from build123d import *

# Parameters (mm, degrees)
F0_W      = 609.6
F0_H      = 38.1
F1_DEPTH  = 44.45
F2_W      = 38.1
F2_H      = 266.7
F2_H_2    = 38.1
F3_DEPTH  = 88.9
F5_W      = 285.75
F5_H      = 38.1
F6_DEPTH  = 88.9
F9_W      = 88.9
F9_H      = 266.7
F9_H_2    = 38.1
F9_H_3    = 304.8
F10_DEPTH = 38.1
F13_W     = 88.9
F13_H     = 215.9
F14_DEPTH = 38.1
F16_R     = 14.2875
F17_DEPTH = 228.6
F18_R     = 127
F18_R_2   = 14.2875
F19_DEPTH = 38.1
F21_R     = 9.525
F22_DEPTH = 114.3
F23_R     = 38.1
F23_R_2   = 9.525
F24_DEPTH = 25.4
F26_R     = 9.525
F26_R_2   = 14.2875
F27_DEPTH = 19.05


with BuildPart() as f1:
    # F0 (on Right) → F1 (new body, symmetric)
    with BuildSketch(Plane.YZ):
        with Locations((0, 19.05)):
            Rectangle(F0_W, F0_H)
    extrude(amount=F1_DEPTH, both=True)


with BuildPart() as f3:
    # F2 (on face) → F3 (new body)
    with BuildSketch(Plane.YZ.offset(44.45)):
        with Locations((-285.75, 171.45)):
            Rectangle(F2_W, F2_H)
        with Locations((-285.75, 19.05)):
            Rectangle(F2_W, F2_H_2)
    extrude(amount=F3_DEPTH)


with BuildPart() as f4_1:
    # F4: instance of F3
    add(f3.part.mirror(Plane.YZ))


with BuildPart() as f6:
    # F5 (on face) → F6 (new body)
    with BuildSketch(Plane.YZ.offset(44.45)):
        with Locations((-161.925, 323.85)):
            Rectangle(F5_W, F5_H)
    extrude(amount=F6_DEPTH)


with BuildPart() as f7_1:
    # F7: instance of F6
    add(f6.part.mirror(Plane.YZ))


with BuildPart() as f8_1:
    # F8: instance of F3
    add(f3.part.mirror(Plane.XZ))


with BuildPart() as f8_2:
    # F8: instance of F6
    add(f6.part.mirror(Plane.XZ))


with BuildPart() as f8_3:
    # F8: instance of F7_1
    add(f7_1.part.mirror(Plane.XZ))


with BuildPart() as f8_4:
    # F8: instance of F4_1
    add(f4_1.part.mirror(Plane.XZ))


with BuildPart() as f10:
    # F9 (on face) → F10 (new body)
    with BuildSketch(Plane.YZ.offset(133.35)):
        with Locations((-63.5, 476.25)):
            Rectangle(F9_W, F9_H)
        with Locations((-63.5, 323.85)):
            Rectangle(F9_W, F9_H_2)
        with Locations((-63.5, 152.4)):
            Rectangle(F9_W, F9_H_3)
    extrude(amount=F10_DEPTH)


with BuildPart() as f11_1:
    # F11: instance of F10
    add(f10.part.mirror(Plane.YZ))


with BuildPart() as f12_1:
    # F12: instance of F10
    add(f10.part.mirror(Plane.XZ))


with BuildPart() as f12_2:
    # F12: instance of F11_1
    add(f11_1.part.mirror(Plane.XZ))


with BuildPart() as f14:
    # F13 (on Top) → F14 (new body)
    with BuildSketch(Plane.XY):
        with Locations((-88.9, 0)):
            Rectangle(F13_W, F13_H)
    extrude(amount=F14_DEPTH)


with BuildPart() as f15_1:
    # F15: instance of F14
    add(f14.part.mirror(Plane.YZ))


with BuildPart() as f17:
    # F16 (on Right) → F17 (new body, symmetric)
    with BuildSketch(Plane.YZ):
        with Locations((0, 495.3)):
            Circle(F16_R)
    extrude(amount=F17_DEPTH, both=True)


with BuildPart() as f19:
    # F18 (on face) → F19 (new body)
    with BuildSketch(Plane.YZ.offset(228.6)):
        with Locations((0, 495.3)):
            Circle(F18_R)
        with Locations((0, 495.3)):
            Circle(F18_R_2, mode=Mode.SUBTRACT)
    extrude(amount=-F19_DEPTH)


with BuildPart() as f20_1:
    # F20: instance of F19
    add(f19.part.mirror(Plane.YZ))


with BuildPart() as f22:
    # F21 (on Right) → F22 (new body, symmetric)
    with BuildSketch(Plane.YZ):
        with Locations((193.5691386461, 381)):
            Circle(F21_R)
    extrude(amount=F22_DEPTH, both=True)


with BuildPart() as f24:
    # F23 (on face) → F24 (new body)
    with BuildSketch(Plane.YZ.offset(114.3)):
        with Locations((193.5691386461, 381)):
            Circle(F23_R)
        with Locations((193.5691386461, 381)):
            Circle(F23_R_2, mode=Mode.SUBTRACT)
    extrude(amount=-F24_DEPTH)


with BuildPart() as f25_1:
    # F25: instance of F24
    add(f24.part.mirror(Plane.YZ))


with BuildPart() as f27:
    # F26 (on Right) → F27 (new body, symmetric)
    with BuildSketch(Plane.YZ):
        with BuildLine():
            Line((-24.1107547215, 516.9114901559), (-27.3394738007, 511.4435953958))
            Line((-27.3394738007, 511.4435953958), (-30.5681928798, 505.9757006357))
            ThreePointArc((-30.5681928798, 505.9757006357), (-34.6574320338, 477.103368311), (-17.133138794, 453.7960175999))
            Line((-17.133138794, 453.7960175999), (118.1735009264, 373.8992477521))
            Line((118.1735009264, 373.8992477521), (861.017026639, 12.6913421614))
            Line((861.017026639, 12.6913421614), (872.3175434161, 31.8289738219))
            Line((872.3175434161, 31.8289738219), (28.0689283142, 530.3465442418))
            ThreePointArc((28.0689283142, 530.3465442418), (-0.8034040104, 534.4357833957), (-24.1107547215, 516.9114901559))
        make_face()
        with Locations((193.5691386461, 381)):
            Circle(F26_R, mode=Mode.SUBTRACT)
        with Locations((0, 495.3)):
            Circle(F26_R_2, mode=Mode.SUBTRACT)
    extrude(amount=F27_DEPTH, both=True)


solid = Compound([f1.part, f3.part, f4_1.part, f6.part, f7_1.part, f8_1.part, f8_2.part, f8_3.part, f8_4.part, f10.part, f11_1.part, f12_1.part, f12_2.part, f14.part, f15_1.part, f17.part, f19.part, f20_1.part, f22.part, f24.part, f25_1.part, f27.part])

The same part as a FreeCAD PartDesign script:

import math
import FreeCAD as App
import Part
import Sketcher
from FreeCAD import Vector
Q = App.Units.Quantity


def add_polygon(sketch, points):
    """Adds a closed chain of lines whose ends are joined by coincident constraints."""
    first, n = sketch.GeometryCount, len(points)
    for a, b in zip(points, points[1:] + points[:1]):
        sketch.addGeometry(Part.LineSegment(App.Vector(*a, 0), App.Vector(*b, 0)), False)
    for i in range(n):
        sketch.addConstraint(Sketcher.Constraint("Coincident", first + i, 2, first + (i + 1) % n, 1))

doc = App.newDocument("Part")
body = doc.addObject("PartDesign::Body", "Body")

sketch1 = body.newObject("Sketcher::SketchObject", "Sketch")
sketch1.AttachmentSupport = (doc.getObject("YZ_Plane"), [""])
sketch1.MapMode = "FlatFace"
add_polygon(sketch1, [(-305, 38), (-305, 0), (305, 0), (305, 38)])
sketch1.addConstraint(Sketcher.Constraint("Vertical", 0))
sketch1.addConstraint(Sketcher.Constraint("Horizontal", 1))
sketch1.addConstraint(Sketcher.Constraint("Vertical", 2))
sketch1.addConstraint(Sketcher.Constraint("Horizontal", 3))
sketch1.addConstraint(Sketcher.Constraint("Symmetric", 0, 2, 1, 2, -1, 1))
sketch1.addConstraint(Sketcher.Constraint("DistanceX", 1, 1, 1, 2, Q("24 in")))
sketch1.addConstraint(Sketcher.Constraint("DistanceY", 0, 2, 0, 1, Q("1.5 in")))
pad1 = body.newObject("PartDesign::Pad", "Pad")
pad1.Profile = sketch1
pad1.Length = Q("3.5 in")
pad1.Midplane = True
body2 = doc.addObject("PartDesign::Body", "Body001")

sketch2 = body2.newObject("Sketcher::SketchObject", "Sketch001")
sketch2.AttachmentSupport = (doc.getObject("YZ_Plane001"), [""])
sketch2.MapMode = "FlatFace"
sketch2.AttachmentOffset = App.Placement(Vector(0, 0, 1.75 * 25.4), App.Rotation())
add_polygon(sketch2, [(-305, 305), (-305, 0), (-267, 0), (-267, 305)])
sketch2.addConstraint(Sketcher.Constraint("Vertical", 0))
sketch2.addConstraint(Sketcher.Constraint("Horizontal", 1))
sketch2.addConstraint(Sketcher.Constraint("Vertical", 2))
sketch2.addConstraint(Sketcher.Constraint("Horizontal", 3))
sketch2.addConstraint(Sketcher.Constraint("PointOnObject", 0, 2, -1))
sketch2.addConstraint(Sketcher.Constraint("DistanceY", 0, 2, 0, 1, Q("12 in")))
sketch2.addConstraint(Sketcher.Constraint("DistanceX", 1, 1, 1, 2, Q("1.5 in")))
sketch2.addConstraint(Sketcher.Constraint("DistanceX", 0, 2, -1, 1, Q("12 in")))
pad2 = body2.newObject("PartDesign::Pad", "Pad001")
pad2.Profile = sketch2
pad2.Length = Q("3.5 in")
body3 = doc.addObject("PartDesign::Body", "Body002")
doc.recompute()

mirroring = doc.addObject("Part::Mirroring", "Mirroring")
mirroring.Source = body2
mirroring.Base = Vector(0, 0, 0)
mirroring.Normal = Vector(1, 0, 0)
body3.BaseFeature = mirroring
doc.recompute()
body4 = doc.addObject("PartDesign::Body", "Body003")

sketch3 = body4.newObject("Sketcher::SketchObject", "Sketch002")
sketch3.AttachmentSupport = (doc.getObject("YZ_Plane003"), [""])
sketch3.MapMode = "FlatFace"
sketch3.AttachmentOffset = App.Placement(Vector(0, 0, 1.75 * 25.4), App.Rotation())
add_polygon(sketch3, [(-305, 343), (-305, 305), (-19, 305), (-19, 343)])
sketch3.addConstraint(Sketcher.Constraint("Vertical", 0))
sketch3.addConstraint(Sketcher.Constraint("Horizontal", 1))
sketch3.addConstraint(Sketcher.Constraint("Vertical", 2))
sketch3.addConstraint(Sketcher.Constraint("Horizontal", 3))
sketch3.addConstraint(Sketcher.Constraint("DistanceY", 0, 2, 0, 1, Q("1.5 in")))
sketch3.addConstraint(Sketcher.Constraint("DistanceX", 0, 2, -1, 1, Q("12 in")))
sketch3.addConstraint(Sketcher.Constraint("DistanceY", -1, 1, 0, 2, Q("12 in")))
sketch3.addConstraint(Sketcher.Constraint("DistanceX", 1, 1, 1, 2, Q("11.25 in")))
pad3 = body4.newObject("PartDesign::Pad", "Pad002")
pad3.Profile = sketch3
pad3.Length = Q("3.5 in")
body5 = doc.addObject("PartDesign::Body", "Body004")
doc.recompute()

mirroring2 = doc.addObject("Part::Mirroring", "Mirroring001")
mirroring2.Source = body4
mirroring2.Base = Vector(0, 0, 0)
mirroring2.Normal = Vector(1, 0, 0)
body5.BaseFeature = mirroring2
doc.recompute()
body6 = doc.addObject("PartDesign::Body", "Body005")
doc.recompute()

mirroring3 = doc.addObject("Part::Mirroring", "Mirroring002")
mirroring3.Source = body2
mirroring3.Base = Vector(0, 0, 0)
mirroring3.Normal = Vector(0, -1, 0)
body6.BaseFeature = mirroring3
doc.recompute()
body7 = doc.addObject("PartDesign::Body", "Body006")
doc.recompute()

mirroring4 = doc.addObject("Part::Mirroring", "Mirroring003")
mirroring4.Source = body4
mirroring4.Base = Vector(0, 0, 0)
mirroring4.Normal = Vector(0, -1, 0)
body7.BaseFeature = mirroring4
doc.recompute()
body8 = doc.addObject("PartDesign::Body", "Body007")
doc.recompute()

mirroring5 = doc.addObject("Part::Mirroring", "Mirroring004")
mirroring5.Source = body5
mirroring5.Base = Vector(0, 0, 0)
mirroring5.Normal = Vector(0, -1, 0)
body8.BaseFeature = mirroring5
doc.recompute()
body9 = doc.addObject("PartDesign::Body", "Body008")
doc.recompute()

mirroring6 = doc.addObject("Part::Mirroring", "Mirroring005")
mirroring6.Source = body3
mirroring6.Base = Vector(0, 0, 0)
mirroring6.Normal = Vector(0, -1, 0)
body9.BaseFeature = mirroring6
doc.recompute()
body10 = doc.addObject("PartDesign::Body", "Body009")

sketch4 = body10.newObject("Sketcher::SketchObject", "Sketch003")
sketch4.AttachmentSupport = (doc.getObject("YZ_Plane009"), [""])
sketch4.MapMode = "FlatFace"
sketch4.AttachmentOffset = App.Placement(Vector(0, 0, 5.25 * 25.4), App.Rotation())
add_polygon(sketch4, [(-108, 610), (-108, 0), (-19, 0), (-19, 610)])
sketch4.addConstraint(Sketcher.Constraint("Vertical", 0))
sketch4.addConstraint(Sketcher.Constraint("Horizontal", 1))
sketch4.addConstraint(Sketcher.Constraint("Vertical", 2))
sketch4.addConstraint(Sketcher.Constraint("Horizontal", 3))
sketch4.addConstraint(Sketcher.Constraint("PointOnObject", 0, 2, -1))
sketch4.addConstraint(Sketcher.Constraint("DistanceY", 0, 2, 0, 1, Q("24 in")))
sketch4.addConstraint(Sketcher.Constraint("DistanceX", 1, 1, 1, 2, Q("3.5 in")))
sketch4.addConstraint(Sketcher.Constraint("DistanceX", 0, 2, -1, 1, Q("4.25 in")))
pad4 = body10.newObject("PartDesign::Pad", "Pad003")
pad4.Profile = sketch4
pad4.Length = Q("1.5 in")
body11 = doc.addObject("PartDesign::Body", "Body010")
doc.recompute()

mirroring7 = doc.addObject("Part::Mirroring", "Mirroring006")
mirroring7.Source = body10
mirroring7.Base = Vector(0, 0, 0)
mirroring7.Normal = Vector(1, 0, 0)
body11.BaseFeature = mirroring7
doc.recompute()
body12 = doc.addObject("PartDesign::Body", "Body011")
doc.recompute()

mirroring8 = doc.addObject("Part::Mirroring", "Mirroring007")
mirroring8.Source = body10
mirroring8.Base = Vector(0, 0, 0)
mirroring8.Normal = Vector(0, -1, 0)
body12.BaseFeature = mirroring8
doc.recompute()
body13 = doc.addObject("PartDesign::Body", "Body012")
doc.recompute()

mirroring9 = doc.addObject("Part::Mirroring", "Mirroring008")
mirroring9.Source = body11
mirroring9.Base = Vector(0, 0, 0)
mirroring9.Normal = Vector(0, -1, 0)
body13.BaseFeature = mirroring9
doc.recompute()
body14 = doc.addObject("PartDesign::Body", "Body013")

sketch5 = body14.newObject("Sketcher::SketchObject", "Sketch004")
sketch5.AttachmentSupport = (doc.getObject("XY_Plane013"), [""])
sketch5.MapMode = "FlatFace"
add_polygon(sketch5, [(-133, 108), (-133, -108), (-44, -108), (-44, 108)])
sketch5.addConstraint(Sketcher.Constraint("Vertical", 0))
sketch5.addConstraint(Sketcher.Constraint("Horizontal", 1))
sketch5.addConstraint(Sketcher.Constraint("Vertical", 2))
sketch5.addConstraint(Sketcher.Constraint("Horizontal", 3))
sketch5.addConstraint(Sketcher.Constraint("DistanceX", 1, 1, 1, 2, Q("3.5 in")))
sketch5.addConstraint(Sketcher.Constraint("DistanceY", 0, 2, 0, 1, Q("8.5 in")))
sketch5.addConstraint(Sketcher.Constraint("DistanceX", 0, 2, -1, 1, Q("5.25 in")))
sketch5.addConstraint(Sketcher.Constraint("DistanceY", 0, 2, -1, 1, Q("4.25 in")))
pad5 = body14.newObject("PartDesign::Pad", "Pad004")
pad5.Profile = sketch5
pad5.Length = Q("1.5 in")
body15 = doc.addObject("PartDesign::Body", "Body014")
doc.recompute()

mirroring10 = doc.addObject("Part::Mirroring", "Mirroring009")
mirroring10.Source = body14
mirroring10.Base = Vector(0, 0, 0)
mirroring10.Normal = Vector(1, 0, 0)
body15.BaseFeature = mirroring10
doc.recompute()
body16 = doc.addObject("PartDesign::Body", "Body015")

sketch6 = body16.newObject("Sketcher::SketchObject", "Sketch005")
sketch6.AttachmentSupport = (doc.getObject("YZ_Plane015"), [""])
sketch6.MapMode = "FlatFace"
sketch6.addGeometry(Part.Circle(Vector(0, 495, 0), Vector(0, 0, 1), 14), False)
sketch6.addConstraint(Sketcher.Constraint("PointOnObject", 0, 3, -2))
sketch6.addConstraint(Sketcher.Constraint("Diameter", 0, Q("1.125 in")))
sketch6.addConstraint(Sketcher.Constraint("DistanceY", -1, 1, 0, 3, Q("19.5 in")))
pad6 = body16.newObject("PartDesign::Pad", "Pad005")
pad6.Profile = sketch6
pad6.Length = Q("18 in")
pad6.Midplane = True
body17 = doc.addObject("PartDesign::Body", "Body016")

sketch7 = body17.newObject("Sketcher::SketchObject", "Sketch006")
sketch7.AttachmentSupport = (doc.getObject("YZ_Plane016"), [""])
sketch7.MapMode = "FlatFace"
sketch7.AttachmentOffset = App.Placement(Vector(0, 0, 9 * 25.4), App.Rotation())
sketch7.addGeometry(Part.Circle(Vector(0, 495, 0), Vector(0, 0, 1), 127), False)
sketch7.addGeometry(Part.Circle(Vector(0, 495, 0), Vector(0, 0, 1), 14), False)
sketch7.addConstraint(Sketcher.Constraint("Coincident", 1, 3, 0, 3))
sketch7.addConstraint(Sketcher.Constraint("PointOnObject", 0, 3, -2))
sketch7.addConstraint(Sketcher.Constraint("Diameter", 0, Q("10 in")))
sketch7.addConstraint(Sketcher.Constraint("Diameter", 1, Q("1.125 in")))
sketch7.addConstraint(Sketcher.Constraint("DistanceY", -1, 1, 0, 3, Q("19.5 in")))
pad7 = body17.newObject("PartDesign::Pad", "Pad006")
pad7.Profile = sketch7
pad7.Length = Q("1.5 in")
pad7.Reversed = True
body18 = doc.addObject("PartDesign::Body", "Body017")
doc.recompute()

mirroring11 = doc.addObject("Part::Mirroring", "Mirroring010")
mirroring11.Source = body17
mirroring11.Base = Vector(0, 0, 0)
mirroring11.Normal = Vector(1, 0, 0)
body18.BaseFeature = mirroring11
doc.recompute()
body19 = doc.addObject("PartDesign::Body", "Body018")

sketch8 = body19.newObject("Sketcher::SketchObject", "Sketch007")
sketch8.AttachmentSupport = (doc.getObject("YZ_Plane018"), [""])
sketch8.MapMode = "FlatFace"
sketch8.addGeometry(Part.Circle(Vector(194, 381, 0), Vector(0, 0, 1), 10), False)
sketch8.addConstraint(Sketcher.Constraint("Diameter", 0, Q("0.75 in")))
sketch8.addConstraint(Sketcher.Constraint("DistanceY", -1, 1, 0, 3, Q("15 in")))
sketch8.addConstraint(Sketcher.Constraint("DistanceX", -1, 1, 0, 3, Q("193.569139 mm")))
pad8 = body19.newObject("PartDesign::Pad", "Pad007")
pad8.Profile = sketch8
pad8.Length = Q("9 in")
pad8.Midplane = True
body20 = doc.addObject("PartDesign::Body", "Body019")

sketch9 = body20.newObject("Sketcher::SketchObject", "Sketch008")
sketch9.AttachmentSupport = (doc.getObject("YZ_Plane019"), [""])
sketch9.MapMode = "FlatFace"
sketch9.AttachmentOffset = App.Placement(Vector(0, 0, 4.5 * 25.4), App.Rotation())
sketch9.addGeometry(Part.Circle(Vector(194, 381, 0), Vector(0, 0, 1), 38), False)
sketch9.addGeometry(Part.Circle(Vector(194, 381, 0), Vector(0, 0, 1), 10), False)
sketch9.addConstraint(Sketcher.Constraint("Coincident", 1, 3, 0, 3))
sketch9.addConstraint(Sketcher.Constraint("Diameter", 0, Q("3 in")))
sketch9.addConstraint(Sketcher.Constraint("Diameter", 1, Q("0.75 in")))
sketch9.addConstraint(Sketcher.Constraint("DistanceY", -1, 1, 0, 3, Q("15 in")))
sketch9.addConstraint(Sketcher.Constraint("DistanceX", -1, 1, 0, 3, Q("193.569139 mm")))
pad9 = body20.newObject("PartDesign::Pad", "Pad008")
pad9.Profile = sketch9
pad9.Length = Q("1 in")
pad9.Reversed = True
body21 = doc.addObject("PartDesign::Body", "Body020")
doc.recompute()

mirroring12 = doc.addObject("Part::Mirroring", "Mirroring011")
mirroring12.Source = body20
mirroring12.Base = Vector(0, 0, 0)
mirroring12.Normal = Vector(1, 0, 0)
body21.BaseFeature = mirroring12
doc.recompute()
body22 = doc.addObject("PartDesign::Body", "Body021")

sketch10 = body22.newObject("Sketcher::SketchObject", "Sketch009")
sketch10.AttachmentSupport = (doc.getObject("YZ_Plane021"), [""])
sketch10.MapMode = "FlatFace"
sketch10.addGeometry(Part.LineSegment(Vector(-24, 517, 0), Vector(-27, 511, 0)), False)
sketch10.addGeometry(Part.LineSegment(Vector(-27, 511, 0), Vector(-31, 506, 0)), False)
sketch10.addGeometry(Part.ArcOfCircle(Part.Circle(Vector(2, 487, 0), Vector(0, 0, 1), 38), math.radians(149), math.radians(239)), False)
sketch10.addGeometry(Part.LineSegment(Vector(-17, 454, 0), Vector(118, 374, 0)), False)
sketch10.addGeometry(Part.LineSegment(Vector(118, 374, 0), Vector(861, 13, 0)), False)
sketch10.addGeometry(Part.LineSegment(Vector(861, 13, 0), Vector(872, 32, 0)), False)
sketch10.addGeometry(Part.LineSegment(Vector(872, 32, 0), Vector(28, 530, 0)), False)
sketch10.addGeometry(Part.ArcOfCircle(Part.Circle(Vector(9, 498, 0), Vector(0, 0, 1), 38), math.radians(59), math.radians(149)), False)
sketch10.addGeometry(Part.Circle(Vector(194, 381, 0), Vector(0, 0, 1), 10), False)
sketch10.addGeometry(Part.Circle(Vector(0, 495, 0), Vector(0, 0, 1), 14), False)
sketch10.addConstraint(Sketcher.Constraint("Coincident", 0, 2, 1, 1))
sketch10.addConstraint(Sketcher.Constraint("Tangent", 1, 2, 2, 1))
sketch10.addConstraint(Sketcher.Constraint("Tangent", 2, 2, 3, 1))
sketch10.addConstraint(Sketcher.Constraint("Coincident", 3, 2, 4, 1))
sketch10.addConstraint(Sketcher.Constraint("Coincident", 4, 2, 5, 1))
sketch10.addConstraint(Sketcher.Constraint("Coincident", 5, 2, 6, 1))
sketch10.addConstraint(Sketcher.Constraint("Tangent", 6, 2, 7, 1))
sketch10.addConstraint(Sketcher.Constraint("Tangent", 7, 2, 0, 1))
sketch10.addConstraint(Sketcher.Constraint("Equal", 2, 7))
sketch10.addConstraint(Sketcher.Constraint("PointOnObject", 9, 3, -2))
sketch10.addConstraint(Sketcher.Constraint("Parallel", 0, 1))
sketch10.addConstraint(Sketcher.Constraint("Perpendicular", 1, 3))
sketch10.addConstraint(Sketcher.Constraint("Perpendicular", 3, 5))
sketch10.addConstraint(Sketcher.Constraint("Perpendicular", 5, 6))
sketch10.addConstraint(Sketcher.Constraint("Equal", 0, 1))
sketch10.addConstraint(Sketcher.Constraint("Radius", 2, Q("1.5 in")))
sketch10.addConstraint(Sketcher.Constraint("Diameter", 8, Q("0.75 in")))
sketch10.addConstraint(Sketcher.Constraint("Diameter", 9, Q("1.125 in")))
sketch10.addConstraint(Sketcher.Constraint("DistanceY", -1, 1, 8, 3, Q("15 in")))
sketch10.addConstraint(Sketcher.Constraint("DistanceY", -1, 1, 9, 3, Q("19.5 in")))
sketch10.addConstraint(Sketcher.Constraint("Distance", 0, Q("0.25 in")))
sketch10.addConstraint(Sketcher.Constraint("Distance", 5, Q("0.875 in")))
sketch10.addConstraint(Sketcher.Constraint("DistanceX", -1, 1, 3, 2, Q("4.6525 in")))
sketch10.addConstraint(Sketcher.Constraint("DistanceY", -1, 1, 1, 2, Q("505.975701 mm")))
sketch10.addConstraint(Sketcher.Constraint("DistanceY", 5, 2, 7, 3, Q("465.710202 mm")))
sketch10.addConstraint(Sketcher.Constraint("DistanceX", -1, 1, 8, 3, Q("193.569139 mm")))
sketch10.addConstraint(Sketcher.Constraint("DistanceX", 2, 2, -1, 1, Q("17.133139 mm")))
sketch10.addConstraint(Sketcher.Constraint("DistanceX", -1, 1, 6, 2, Q("28.068928 mm")))
pad10 = body22.newObject("PartDesign::Pad", "Pad009")
pad10.Profile = sketch10
pad10.Length = Q("1.5 in")
pad10.Midplane = True

doc.recompute()
